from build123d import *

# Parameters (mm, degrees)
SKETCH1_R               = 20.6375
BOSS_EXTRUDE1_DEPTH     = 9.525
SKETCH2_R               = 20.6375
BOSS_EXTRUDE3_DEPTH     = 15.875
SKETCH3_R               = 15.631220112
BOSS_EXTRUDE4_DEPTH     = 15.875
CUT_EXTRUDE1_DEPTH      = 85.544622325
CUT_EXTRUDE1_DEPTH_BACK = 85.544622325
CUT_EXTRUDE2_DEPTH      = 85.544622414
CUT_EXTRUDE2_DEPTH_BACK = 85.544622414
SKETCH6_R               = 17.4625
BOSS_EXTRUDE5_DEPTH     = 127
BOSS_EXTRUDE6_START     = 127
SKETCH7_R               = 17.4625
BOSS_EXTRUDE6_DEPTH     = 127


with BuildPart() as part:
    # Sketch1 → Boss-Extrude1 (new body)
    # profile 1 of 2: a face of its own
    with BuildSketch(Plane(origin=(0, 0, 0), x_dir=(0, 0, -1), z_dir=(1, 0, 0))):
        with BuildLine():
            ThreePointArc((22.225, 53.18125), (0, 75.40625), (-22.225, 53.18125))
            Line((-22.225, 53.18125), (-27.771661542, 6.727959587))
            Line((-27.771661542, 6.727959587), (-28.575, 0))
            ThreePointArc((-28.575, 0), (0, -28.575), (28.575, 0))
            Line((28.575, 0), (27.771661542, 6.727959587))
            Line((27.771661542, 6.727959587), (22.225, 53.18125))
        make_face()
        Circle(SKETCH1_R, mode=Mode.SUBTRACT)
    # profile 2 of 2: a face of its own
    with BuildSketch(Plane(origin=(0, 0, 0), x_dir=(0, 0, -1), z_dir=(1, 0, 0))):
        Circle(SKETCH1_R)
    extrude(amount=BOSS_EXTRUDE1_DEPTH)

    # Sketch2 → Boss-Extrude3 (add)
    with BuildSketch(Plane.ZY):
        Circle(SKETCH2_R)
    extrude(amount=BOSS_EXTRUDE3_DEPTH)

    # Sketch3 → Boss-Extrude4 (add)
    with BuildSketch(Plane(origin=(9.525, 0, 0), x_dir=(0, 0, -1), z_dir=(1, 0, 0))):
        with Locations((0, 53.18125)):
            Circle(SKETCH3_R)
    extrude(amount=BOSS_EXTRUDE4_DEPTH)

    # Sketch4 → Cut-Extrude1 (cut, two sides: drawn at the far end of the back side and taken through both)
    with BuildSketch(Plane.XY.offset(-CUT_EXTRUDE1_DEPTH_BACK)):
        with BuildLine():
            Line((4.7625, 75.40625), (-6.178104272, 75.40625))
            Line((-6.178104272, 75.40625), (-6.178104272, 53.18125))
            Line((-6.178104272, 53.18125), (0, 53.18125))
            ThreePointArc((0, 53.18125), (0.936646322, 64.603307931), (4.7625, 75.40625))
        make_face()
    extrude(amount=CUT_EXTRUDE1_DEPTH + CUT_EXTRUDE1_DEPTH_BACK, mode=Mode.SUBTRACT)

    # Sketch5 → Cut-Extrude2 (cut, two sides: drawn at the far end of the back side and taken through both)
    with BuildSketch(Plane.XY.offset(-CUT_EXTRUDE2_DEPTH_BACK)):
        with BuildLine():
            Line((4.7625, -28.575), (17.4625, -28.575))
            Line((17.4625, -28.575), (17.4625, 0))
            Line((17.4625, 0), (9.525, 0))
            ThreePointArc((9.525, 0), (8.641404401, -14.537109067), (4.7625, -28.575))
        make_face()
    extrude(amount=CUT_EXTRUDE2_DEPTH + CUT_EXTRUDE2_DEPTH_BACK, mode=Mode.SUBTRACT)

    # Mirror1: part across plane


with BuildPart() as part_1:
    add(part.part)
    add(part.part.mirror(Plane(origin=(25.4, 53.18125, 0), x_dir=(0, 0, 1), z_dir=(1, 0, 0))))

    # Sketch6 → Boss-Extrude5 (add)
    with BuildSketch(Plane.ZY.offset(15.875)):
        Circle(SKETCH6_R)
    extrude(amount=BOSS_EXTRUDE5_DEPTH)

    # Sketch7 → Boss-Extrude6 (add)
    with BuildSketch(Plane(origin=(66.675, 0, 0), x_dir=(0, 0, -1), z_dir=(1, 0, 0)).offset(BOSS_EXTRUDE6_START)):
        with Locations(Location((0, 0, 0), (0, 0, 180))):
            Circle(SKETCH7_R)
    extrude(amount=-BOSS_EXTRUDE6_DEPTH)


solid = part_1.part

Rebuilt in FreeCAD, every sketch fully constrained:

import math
import FreeCAD as App
import Part
import Sketcher
Q = App.Units.Quantity

doc = App.newDocument("Part")
params = doc.addObject("Spreadsheet::Sheet", "Params")
for row, (alias, value) in enumerate([
    ("sketch1_radius", "0.875 in"),
    ("sketch1_radius2", "1.125 in"),
    ("pad1_length", "0.375 in"),
    ("sketch2_diameter", "1.625 in"),
    ("pad2_length", "0.625 in"),
    ("pad3_length", "0.625 in"),
    ("sketch4_radius", "1.75 in"),
    ("sketch4_height", "0.875 in"),
    ("sketch5_radius", "2.75 in"),
    ("sketch5_width", "0.5 in"),
    ("sketch5_width2", "0.3125 in"),
    ("sketch5_height", "1.125 in"),
    ("sketch6_diameter", "1.375 in"),
    ("pad4_length", "5 in"),
    ("sketch7_diameter", "1.375 in"),
    ("pad5_length", "5 in"),
], start=1):
    params.set(f"A{row}", alias)
    params.set(f"B{row}", "=" + value)
    params.setAlias(f"B{row}", alias)

body = doc.addObject("PartDesign::Body", "Body")

sketch1 = body.newObject("Sketcher::SketchObject", "Sketch")
sketch1.AttachmentSupport = (doc.getObject("YZ_Plane"), [""])
sketch1.MapMode = "FlatFace"
sketch1.addGeometry(Part.ArcOfCircle(Part.Circle(App.Vector(53.18125, 0, 0), App.Vector(0, 0, 1), 22.225), math.radians(-90), math.radians(90)), False)
sketch1.addGeometry(Part.LineSegment(App.Vector(53.18125, 22.225, 0), App.Vector(6.72796, 27.771662, 0)), False)
sketch1.addGeometry(Part.LineSegment(App.Vector(6.72796, 27.771662, 0), App.Vector(0, 28.575, 0)), False)
sketch1.addGeometry(Part.ArcOfCircle(Part.Circle(App.Vector(0, 0, 0), App.Vector(0, 0, 1), 28.575), math.radians(90), math.radians(270)), False)
sketch1.addGeometry(Part.LineSegment(App.Vector(0, -28.575, 0), App.Vector(6.72796, -27.771662, 0)), False)
sketch1.addGeometry(Part.LineSegment(App.Vector(6.72796, -27.771662, 0), App.Vector(53.18125, -22.225, 0)), False)
sketch1.addConstraint(Sketcher.Constraint("Coincident", 0, 2, 1, 1))
sketch1.addConstraint(Sketcher.Constraint("Coincident", 1, 2, 2, 1))
sketch1.addConstraint(Sketcher.Constraint("Coincident", 2, 2, 3, 1))
sketch1.addConstraint(Sketcher.Constraint("Coincident", 3, 2, 4, 1))
sketch1.addConstraint(Sketcher.Constraint("Coincident", 4, 2, 5, 1))
sketch1.addConstraint(Sketcher.Constraint("Coincident", 5, 2, 0, 1))
sketch1.addConstraint(Sketcher.Constraint("Coincident", 3, 3, -1, 1))
sketch1.addConstraint(Sketcher.Constraint("Symmetric", 1, 2, 4, 2, -1))
sketch1.addConstraint(Sketcher.Constraint("Symmetric", 0, 2, 5, 2, -1))
sketch1.addConstraint(Sketcher.Constraint("PointOnObject", 2, 2, -2))
sketch1.addConstraint(Sketcher.Constraint("PointOnObject", 3, 2, -2))
sketch1.addConstraint(Sketcher.Constraint("Parallel", 1, 2))
sketch1.addConstraint(Sketcher.Constraint("Radius", 0, Q("0.875 in")))
sketch1.addConstraint(Sketcher.Constraint("Radius", 3, Q("1.125 in")))
sketch1.addConstraint(Sketcher.Constraint("DistanceX", -1, 1, 0, 3, Q("2.09375 in")))
sketch1.addConstraint(Sketcher.Constraint("DistanceX", -1, 1, 0, 2, Q("2.09375 in")))
sketch1.addConstraint(Sketcher.Constraint("Distance", 2, 6.77575))
sketch1.setExpression("Constraints[12]", "Params.sketch1_radius")
sketch1.setExpression("Constraints[13]", "Params.sketch1_radius2")
pad1 = body.newObject("PartDesign::Pad", "Pad")
pad1.Profile = sketch1
pad1.setExpression("Length", "Params.pad1_length")

sketch2 = body.newObject("Sketcher::SketchObject", "Sketch001")
sketch2.AttachmentSupport = (doc.getObject("YZ_Plane"), [""])
sketch2.MapMode = "FlatFace"
sketch2.addGeometry(Part.Circle(App.Vector(0, 0, 0), App.Vector(0, 0, 1), 20.6375), False)
sketch2.addConstraint(Sketcher.Constraint("Coincident", 0, 3, -1, 1))
sketch2.addConstraint(Sketcher.Constraint("Diameter", 0, Q("1.625 in")))
sketch2.setExpression("Constraints[1]", "Params.sketch2_diameter")
pad2 = body.newObject("PartDesign::Pad", "Pad001")
pad2.Profile = sketch2
pad2.setExpression("Length", "Params.pad2_length")
pad2.Reversed = True

sketch3 = body.newObject("Sketcher::SketchObject", "Sketch002")
sketch3.AttachmentSupport = (doc.getObject("YZ_Plane"), [""])
sketch3.MapMode = "FlatFace"
sketch3.AttachmentOffset = App.Placement(App.Vector(0, 0, 0.375 * 25.4), App.Rotation())
sketch3.addGeometry(Part.Circle(App.Vector(53.18125, 0, 0), App.Vector(0, 0, 1), 15.63122), False)
sketch3.addConstraint(Sketcher.Constraint("PointOnObject", 0, 3, -1))
sketch3.addConstraint(Sketcher.Constraint("Diameter", 0, 31.26244))
sketch3.addConstraint(Sketcher.Constraint("DistanceX", -1, 1, 0, 3, Q("2.09375 in")))
pad3 = body.newObject("PartDesign::Pad", "Pad002")
pad3.Profile = sketch3
pad3.setExpression("Length", "Params.pad3_length")

sketch4 = body.newObject("Sketcher::SketchObject", "Sketch003")
sketch4.AttachmentSupport = (doc.getObject("XY_Plane"), [""])
sketch4.MapMode = "FlatFace"
sketch4.addGeometry(Part.LineSegment(App.Vector(4.7625, 75.40625, 0), App.Vector(-6.178104, 75.40625, 0)), False)
sketch4.addGeometry(Part.LineSegment(App.Vector(-6.178104, 75.40625, 0), App.Vector(-6.178104, 53.18125, 0)), False)
sketch4.addGeometry(Part.LineSegment(App.Vector(-6.178104, 53.18125, 0), App.Vector(0, 53.18125, 0)), False)
sketch4.addGeometry(Part.ArcOfCircle(Part.Circle(App.Vector(44.399964, 55.28974, 0), App.Vector(0, 0, 1), 44.45), math.radians(153.091635), math.radians(182.718851)), False)
sketch4.addConstraint(Sketcher.Constraint("Coincident", 0, 2, 1, 1))
sketch4.addConstraint(Sketcher.Constraint("Coincident", 1, 2, 2, 1))
sketch4.addConstraint(Sketcher.Constraint("Coincident", 2, 2, 3, 2))
sketch4.addConstraint(Sketcher.Constraint("Coincident", 3, 1, 0, 1))
sketch4.addConstraint(Sketcher.Constraint("Horizontal", 0))
sketch4.addConstraint(Sketcher.Constraint("Vertical", 1))
sketch4.addConstraint(Sketcher.Constraint("Horizontal", 2))
sketch4.addConstraint(Sketcher.Constraint("PointOnObject", 2, 2, -2))
sketch4.addConstraint(Sketcher.Constraint("Radius", 3, Q("1.75 in")))
sketch4.addConstraint(Sketcher.Constraint("DistanceY", 1, 2, 1, 1, Q("0.875 in")))
sketch4.addConstraint(Sketcher.Constraint("DistanceY", -1, 1, 0, 2, Q("2.96875 in")))
sketch4.addConstraint(Sketcher.Constraint("DistanceX", -1, 1, 3, 1, Q("0.1875 in")))
sketch4.addConstraint(Sketcher.Constraint("DistanceX", 0, 2, 0, 1, 10.940604))
sketch4.setExpression("Constraints[8]", "Params.sketch4_radius")
sketch4.setExpression("Constraints[9]", "Params.sketch4_height")
pocket1 = body.newObject("PartDesign::Pocket", "Pocket")
pocket1.Profile = sketch4
pocket1.Type = "ThroughAll"
pocket1.Midplane = True

sketch5 = body.newObject("Sketcher::SketchObject", "Sketch004")
sketch5.AttachmentSupport = (doc.getObject("XY_Plane"), [""])
sketch5.MapMode = "FlatFace"
sketch5.addGeometry(Part.LineSegment(App.Vector(4.7625, -28.575, 0), App.Vector(17.4625, -28.575, 0)), False)
sketch5.addGeometry(Part.LineSegment(App.Vector(17.4625, -28.575, 0), App.Vector(17.4625, 0, 0)), False)
sketch5.addGeometry(Part.LineSegment(App.Vector(17.4625, 0, 0), App.Vector(9.525, 0, 0)), False)
sketch5.addGeometry(Part.ArcOfCircle(Part.Circle(App.Vector(-60.258211, -3.05384, 0), App.Vector(0, 0, 1), 69.85), math.radians(-21.430413), math.radians(2.505768)), False)
sketch5.addConstraint(Sketcher.Constraint("Coincident", 0, 2, 1, 1))
sketch5.addConstraint(Sketcher.Constraint("Coincident", 1, 2, 2, 1))
sketch5.addConstraint(Sketcher.Constraint("Coincident", 2, 2, 3, 2))
sketch5.addConstraint(Sketcher.Constraint("Coincident", 3, 1, 0, 1))
sketch5.addConstraint(Sketcher.Constraint("Horizontal", 0))
sketch5.addConstraint(Sketcher.Constraint("Vertical", 1))
sketch5.addConstraint(Sketcher.Constraint("Horizontal", 2))
sketch5.addConstraint(Sketcher.Constraint("PointOnObject", 1, 2, -1))
sketch5.addConstraint(Sketcher.Constraint("Radius", 3, Q("2.75 in")))
sketch5.addConstraint(Sketcher.Constraint("DistanceX", 0, 1, 0, 2, Q("0.5 in")))
sketch5.addConstraint(Sketcher.Constraint("DistanceX", 2, 2, 2, 1, Q("0.3125 in")))
sketch5.addConstraint(Sketcher.Constraint("DistanceY", 1, 1, 1, 2, Q("1.125 in")))
sketch5.addConstraint(Sketcher.Constraint("DistanceX", -1, 1, 0, 2, Q("0.6875 in")))
sketch5.setExpression("Constraints[8]", "Params.sketch5_radius")
sketch5.setExpression("Constraints[9]", "Params.sketch5_width")
sketch5.setExpression("Constraints[10]", "Params.sketch5_width2")
sketch5.setExpression("Constraints[11]", "Params.sketch5_height")
pocket2 = body.newObject("PartDesign::Pocket", "Pocket001")
pocket2.Profile = sketch5
pocket2.Type = "ThroughAll"
pocket2.Midplane = True
body2 = doc.addObject("PartDesign::Body", "Body001")
doc.recompute()

body2.BaseFeature = body
doc.recompute()

mirroring = doc.addObject("Part::Mirroring", "Mirroring")
mirroring.Source = body
mirroring.Base = App.Vector(25.4, 53.18125, 0)
mirroring.Normal = App.Vector(1, 0, 0)
body3 = doc.addObject("PartDesign::Body", "Body002")
body3.BaseFeature = mirroring
boolean = body2.newObject("PartDesign::Boolean", "Boolean")
boolean.Type = "Fuse"
boolean.addObjects([body3])
doc.recompute()

sketch6 = body2.newObject("Sketcher::SketchObject", "Sketch005")
sketch6.AttachmentSupport = (doc.getObject("YZ_Plane001"), [""])
sketch6.MapMode = "FlatFace"
sketch6.AttachmentOffset = App.Placement(App.Vector(0, 0, -0.625 * 25.4), App.Rotation())
sketch6.addGeometry(Part.Circle(App.Vector(0, 0, 0), App.Vector(0, 0, 1), 17.4625), False)
sketch6.addConstraint(Sketcher.Constraint("Coincident", 0, 3, -1, 1))
sketch6.addConstraint(Sketcher.Constraint("Diameter", 0, Q("1.375 in")))
sketch6.setExpression("Constraints[1]", "Params.sketch6_diameter")
pad4 = body2.newObject("PartDesign::Pad", "Pad003")
pad4.Profile = sketch6
pad4.setExpression("Length", "Params.pad4_length")
pad4.Reversed = True

sketch7 = body2.newObject("Sketcher::SketchObject", "Sketch006")
sketch7.AttachmentSupport = (doc.getObject("YZ_Plane001"), [""])
sketch7.MapMode = "FlatFace"
sketch7.AttachmentOffset = App.Placement(App.Vector(0, 0, 7.625 * 25.4), App.Rotation())
sketch7.addGeometry(Part.Circle(App.Vector(0, 0, 0), App.Vector(0, 0, 1), 17.4625), False)
sketch7.addConstraint(Sketcher.Constraint("Coincident", 0, 3, -1, 1))
sketch7.addConstraint(Sketcher.Constraint("Diameter", 0, Q("1.375 in")))
sketch7.setExpression("Constraints[1]", "Params.sketch7_diameter")
pad5 = body2.newObject("PartDesign::Pad", "Pad004")
pad5.Profile = sketch7
pad5.setExpression("Length", "Params.pad5_length")
pad5.Reversed = True
mirroring.Visibility = False

doc.recompute()
